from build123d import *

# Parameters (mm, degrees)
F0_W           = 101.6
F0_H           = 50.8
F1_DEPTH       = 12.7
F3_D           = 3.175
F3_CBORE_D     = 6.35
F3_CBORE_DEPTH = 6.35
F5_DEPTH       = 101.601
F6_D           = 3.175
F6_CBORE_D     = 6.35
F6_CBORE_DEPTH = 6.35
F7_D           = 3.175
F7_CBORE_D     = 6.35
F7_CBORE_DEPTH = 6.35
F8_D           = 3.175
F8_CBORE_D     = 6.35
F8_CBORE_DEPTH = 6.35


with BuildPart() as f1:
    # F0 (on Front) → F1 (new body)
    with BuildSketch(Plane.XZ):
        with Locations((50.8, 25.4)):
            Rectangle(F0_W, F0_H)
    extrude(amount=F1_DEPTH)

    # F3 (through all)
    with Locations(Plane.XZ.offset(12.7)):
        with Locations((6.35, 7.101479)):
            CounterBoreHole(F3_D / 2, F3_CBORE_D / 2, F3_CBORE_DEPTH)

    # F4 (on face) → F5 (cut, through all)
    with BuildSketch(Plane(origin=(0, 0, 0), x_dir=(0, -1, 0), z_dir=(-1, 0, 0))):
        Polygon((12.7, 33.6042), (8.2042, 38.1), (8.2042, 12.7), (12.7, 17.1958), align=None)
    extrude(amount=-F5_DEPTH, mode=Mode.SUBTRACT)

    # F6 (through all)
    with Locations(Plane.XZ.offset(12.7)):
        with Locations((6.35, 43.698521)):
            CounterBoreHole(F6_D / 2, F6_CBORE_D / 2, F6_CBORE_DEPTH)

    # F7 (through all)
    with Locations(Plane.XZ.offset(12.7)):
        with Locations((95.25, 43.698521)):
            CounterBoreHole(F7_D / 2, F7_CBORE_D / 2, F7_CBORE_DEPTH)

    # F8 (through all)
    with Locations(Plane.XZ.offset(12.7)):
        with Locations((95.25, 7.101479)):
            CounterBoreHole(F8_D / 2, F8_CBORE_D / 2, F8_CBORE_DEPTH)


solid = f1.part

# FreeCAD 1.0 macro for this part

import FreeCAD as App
import Part
import Sketcher
from FreeCAD import Vector
Q = App.Units.Quantity


def add_polygon(sketch, points):
    """Adds a closed chain of lines whose ends are joined by coincident constraints."""
    first, n = sketch.GeometryCount, len(points)
    for a, b in zip(points, points[1:] + points[:1]):
        sketch.addGeometry(Part.LineSegment(App.Vector(*a, 0), App.Vector(*b, 0)), False)
    for i in range(n):
        sketch.addConstraint(Sketcher.Constraint("Coincident", first + i, 2, first + (i + 1) % n, 1))

doc = App.newDocument("Part")
body = doc.addObject("PartDesign::Body", "Body")

sketch1 = body.newObject("Sketcher::SketchObject", "Sketch")
sketch1.AttachmentSupport = (doc.getObject("XZ_Plane"), [""])
sketch1.MapMode = "FlatFace"
add_polygon(sketch1, [(0, 51), (0, 0), (102, 0), (102, 51)])
sketch1.addConstraint(Sketcher.Constraint("Vertical", 0))
sketch1.addConstraint(Sketcher.Constraint("Horizontal", 1))
sketch1.addConstraint(Sketcher.Constraint("Vertical", 2))
sketch1.addConstraint(Sketcher.Constraint("Horizontal", 3))
sketch1.addConstraint(Sketcher.Constraint("Coincident", 0, 2, -1, 1))
sketch1.addConstraint(Sketcher.Constraint("DistanceX", 1, 1, 1, 2, Q("4 in")))
sketch1.addConstraint(Sketcher.Constraint("DistanceY", 0, 2, 0, 1, Q("2 in")))
pad1 = body.newObject("PartDesign::Pad", "Pad")
pad1.Profile = sketch1
pad1.Length = Q("0.5 in")

sketch2 = body.newObject("Sketcher::SketchObject", "Sketch001")
sketch2.AttachmentSupport = (doc.getObject("XZ_Plane"), [""])
sketch2.MapMode = "FlatFace"
sketch2.AttachmentOffset = App.Placement(Vector(0, 0, 0.5 * 25.4), App.Rotation())
sketch2.addGeometry(Part.Circle(Vector(6.3, 7.1, 0), Vector(0, 0, 1), 1.6), False)
sketch2.addConstraint(Sketcher.Constraint("Diameter", 0, Q("0.125 in")))
sketch2.addConstraint(Sketcher.Constraint("DistanceX", -1, 1, 0, 3, Q("0.25 in")))
sketch2.addConstraint(Sketcher.Constraint("DistanceY", -1, 1, 0, 3, 7.101479))
doc.recompute()
hole = body.newObject("PartDesign::Hole", "Hole")
hole.Profile = sketch2
hole.ThreadType = "None"
hole.Diameter = Q("0.125 in")
hole.DepthType = "ThroughAll"
hole.HoleCutType = "Counterbore"
hole.HoleCutDiameter = Q("0.25 in")
hole.HoleCutDepth = Q("0.25 in")

sketch3 = body.newObject("Sketcher::SketchObject", "Sketch002")
sketch3.AttachmentSupport = (doc.getObject("YZ_Plane"), [""])
sketch3.MapMode = "FlatFace"
add_polygon(sketch3, [(-13, 34), (-8, 38), (-8, 13), (-13, 17)])
sketch3.addConstraint(Sketcher.Constraint("Vertical", 1))
sketch3.addConstraint(Sketcher.Constraint("Vertical", 3))
sketch3.addConstraint(Sketcher.Constraint("Perpendicular", 0, 2))
sketch3.addConstraint(Sketcher.Constraint("Equal", 0, 2))
sketch3.addConstraint(Sketcher.Constraint("DistanceY", 1, 2, 1, 1, Q("1 in")))
sketch3.addConstraint(Sketcher.Constraint("DistanceY", -1, 1, 0, 2, Q("1.5 in")))
sketch3.addConstraint(Sketcher.Constraint("DistanceX", 2, 2, -1, 1, Q("0.5 in")))
sketch3.addConstraint(Sketcher.Constraint("DistanceY", 3, 1, 3, 2, Q("0.646 in")))
pocket1 = body.newObject("PartDesign::Pocket", "Pocket")
pocket1.Profile = sketch3
pocket1.Type = "ThroughAll"
pocket1.Reversed = True

sketch4 = body.newObject("Sketcher::SketchObject", "Sketch003")
sketch4.AttachmentSupport = (doc.getObject("XZ_Plane"), [""])
sketch4.MapMode = "FlatFace"
sketch4.AttachmentOffset = App.Placement(Vector(0, 0, 0.5 * 25.4), App.Rotation())
sketch4.addGeometry(Part.Circle(Vector(6.3, 43.7, 0), Vector(0, 0, 1), 1.6), False)
sketch4.addConstraint(Sketcher.Constraint("Diameter", 0, Q("0.125 in")))
sketch4.addConstraint(Sketcher.Constraint("DistanceX", -1, 1, 0, 3, Q("0.25 in")))
sketch4.addConstraint(Sketcher.Constraint("DistanceY", -1, 1, 0, 3, 43.698521))
doc.recompute()
hole2 = body.newObject("PartDesign::Hole", "Hole001")
hole2.Profile = sketch4
hole2.ThreadType = "None"
hole2.Diameter = Q("0.125 in")
hole2.DepthType = "ThroughAll"
hole2.HoleCutType = "Counterbore"
hole2.HoleCutDiameter = Q("0.25 in")
hole2.HoleCutDepth = Q("0.25 in")

sketch5 = body.newObject("Sketcher::SketchObject", "Sketch004")
sketch5.AttachmentSupport = (doc.getObject("XZ_Plane"), [""])
sketch5.MapMode = "FlatFace"
sketch5.AttachmentOffset = App.Placement(Vector(0, 0, 0.5 * 25.4), App.Rotation())
sketch5.addGeometry(Part.Circle(Vector(95.2, 43.7, 0), Vector(0, 0, 1), 1.6), False)
sketch5.addConstraint(Sketcher.Constraint("Diameter", 0, Q("0.125 in")))
sketch5.addConstraint(Sketcher.Constraint("DistanceX", -1, 1, 0, 3, Q("3.75 in")))
sketch5.addConstraint(Sketcher.Constraint("DistanceY", -1, 1, 0, 3, 43.698521))
doc.recompute()
hole3 = body.newObject("PartDesign::Hole", "Hole002")
hole3.Profile = sketch5
hole3.ThreadType = "None"
hole3.Diameter = Q("0.125 in")
hole3.DepthType = "ThroughAll"
hole3.HoleCutType = "Counterbore"
hole3.HoleCutDiameter = Q("0.25 in")
hole3.HoleCutDepth = Q("0.25 in")

sketch6 = body.newObject("Sketcher::SketchObject", "Sketch005")
sketch6.AttachmentSupport = (doc.getObject("XZ_Plane"), [""])
sketch6.MapMode = "FlatFace"
sketch6.AttachmentOffset = App.Placement(Vector(0, 0, 0.5 * 25.4), App.Rotation())
sketch6.addGeometry(Part.Circle(Vector(95.2, 7.1, 0), Vector(0, 0, 1), 1.6), False)
sketch6.addConstraint(Sketcher.Constraint("Diameter", 0, Q("0.125 in")))
sketch6.addConstraint(Sketcher.Constraint("DistanceX", -1, 1, 0, 3, Q("3.75 in")))
sketch6.addConstraint(Sketcher.Constraint("DistanceY", -1, 1, 0, 3, 7.101479))
doc.recompute()
hole4 = body.newObject("PartDesign::Hole", "Hole003")
hole4.Profile = sketch6
hole4.ThreadType = "None"
hole4.Diameter = Q("0.125 in")
hole4.DepthType = "ThroughAll"
hole4.HoleCutType = "Counterbore"
hole4.HoleCutDiameter = Q("0.25 in")
hole4.HoleCutDepth = Q("0.25 in")

doc.recompute()
